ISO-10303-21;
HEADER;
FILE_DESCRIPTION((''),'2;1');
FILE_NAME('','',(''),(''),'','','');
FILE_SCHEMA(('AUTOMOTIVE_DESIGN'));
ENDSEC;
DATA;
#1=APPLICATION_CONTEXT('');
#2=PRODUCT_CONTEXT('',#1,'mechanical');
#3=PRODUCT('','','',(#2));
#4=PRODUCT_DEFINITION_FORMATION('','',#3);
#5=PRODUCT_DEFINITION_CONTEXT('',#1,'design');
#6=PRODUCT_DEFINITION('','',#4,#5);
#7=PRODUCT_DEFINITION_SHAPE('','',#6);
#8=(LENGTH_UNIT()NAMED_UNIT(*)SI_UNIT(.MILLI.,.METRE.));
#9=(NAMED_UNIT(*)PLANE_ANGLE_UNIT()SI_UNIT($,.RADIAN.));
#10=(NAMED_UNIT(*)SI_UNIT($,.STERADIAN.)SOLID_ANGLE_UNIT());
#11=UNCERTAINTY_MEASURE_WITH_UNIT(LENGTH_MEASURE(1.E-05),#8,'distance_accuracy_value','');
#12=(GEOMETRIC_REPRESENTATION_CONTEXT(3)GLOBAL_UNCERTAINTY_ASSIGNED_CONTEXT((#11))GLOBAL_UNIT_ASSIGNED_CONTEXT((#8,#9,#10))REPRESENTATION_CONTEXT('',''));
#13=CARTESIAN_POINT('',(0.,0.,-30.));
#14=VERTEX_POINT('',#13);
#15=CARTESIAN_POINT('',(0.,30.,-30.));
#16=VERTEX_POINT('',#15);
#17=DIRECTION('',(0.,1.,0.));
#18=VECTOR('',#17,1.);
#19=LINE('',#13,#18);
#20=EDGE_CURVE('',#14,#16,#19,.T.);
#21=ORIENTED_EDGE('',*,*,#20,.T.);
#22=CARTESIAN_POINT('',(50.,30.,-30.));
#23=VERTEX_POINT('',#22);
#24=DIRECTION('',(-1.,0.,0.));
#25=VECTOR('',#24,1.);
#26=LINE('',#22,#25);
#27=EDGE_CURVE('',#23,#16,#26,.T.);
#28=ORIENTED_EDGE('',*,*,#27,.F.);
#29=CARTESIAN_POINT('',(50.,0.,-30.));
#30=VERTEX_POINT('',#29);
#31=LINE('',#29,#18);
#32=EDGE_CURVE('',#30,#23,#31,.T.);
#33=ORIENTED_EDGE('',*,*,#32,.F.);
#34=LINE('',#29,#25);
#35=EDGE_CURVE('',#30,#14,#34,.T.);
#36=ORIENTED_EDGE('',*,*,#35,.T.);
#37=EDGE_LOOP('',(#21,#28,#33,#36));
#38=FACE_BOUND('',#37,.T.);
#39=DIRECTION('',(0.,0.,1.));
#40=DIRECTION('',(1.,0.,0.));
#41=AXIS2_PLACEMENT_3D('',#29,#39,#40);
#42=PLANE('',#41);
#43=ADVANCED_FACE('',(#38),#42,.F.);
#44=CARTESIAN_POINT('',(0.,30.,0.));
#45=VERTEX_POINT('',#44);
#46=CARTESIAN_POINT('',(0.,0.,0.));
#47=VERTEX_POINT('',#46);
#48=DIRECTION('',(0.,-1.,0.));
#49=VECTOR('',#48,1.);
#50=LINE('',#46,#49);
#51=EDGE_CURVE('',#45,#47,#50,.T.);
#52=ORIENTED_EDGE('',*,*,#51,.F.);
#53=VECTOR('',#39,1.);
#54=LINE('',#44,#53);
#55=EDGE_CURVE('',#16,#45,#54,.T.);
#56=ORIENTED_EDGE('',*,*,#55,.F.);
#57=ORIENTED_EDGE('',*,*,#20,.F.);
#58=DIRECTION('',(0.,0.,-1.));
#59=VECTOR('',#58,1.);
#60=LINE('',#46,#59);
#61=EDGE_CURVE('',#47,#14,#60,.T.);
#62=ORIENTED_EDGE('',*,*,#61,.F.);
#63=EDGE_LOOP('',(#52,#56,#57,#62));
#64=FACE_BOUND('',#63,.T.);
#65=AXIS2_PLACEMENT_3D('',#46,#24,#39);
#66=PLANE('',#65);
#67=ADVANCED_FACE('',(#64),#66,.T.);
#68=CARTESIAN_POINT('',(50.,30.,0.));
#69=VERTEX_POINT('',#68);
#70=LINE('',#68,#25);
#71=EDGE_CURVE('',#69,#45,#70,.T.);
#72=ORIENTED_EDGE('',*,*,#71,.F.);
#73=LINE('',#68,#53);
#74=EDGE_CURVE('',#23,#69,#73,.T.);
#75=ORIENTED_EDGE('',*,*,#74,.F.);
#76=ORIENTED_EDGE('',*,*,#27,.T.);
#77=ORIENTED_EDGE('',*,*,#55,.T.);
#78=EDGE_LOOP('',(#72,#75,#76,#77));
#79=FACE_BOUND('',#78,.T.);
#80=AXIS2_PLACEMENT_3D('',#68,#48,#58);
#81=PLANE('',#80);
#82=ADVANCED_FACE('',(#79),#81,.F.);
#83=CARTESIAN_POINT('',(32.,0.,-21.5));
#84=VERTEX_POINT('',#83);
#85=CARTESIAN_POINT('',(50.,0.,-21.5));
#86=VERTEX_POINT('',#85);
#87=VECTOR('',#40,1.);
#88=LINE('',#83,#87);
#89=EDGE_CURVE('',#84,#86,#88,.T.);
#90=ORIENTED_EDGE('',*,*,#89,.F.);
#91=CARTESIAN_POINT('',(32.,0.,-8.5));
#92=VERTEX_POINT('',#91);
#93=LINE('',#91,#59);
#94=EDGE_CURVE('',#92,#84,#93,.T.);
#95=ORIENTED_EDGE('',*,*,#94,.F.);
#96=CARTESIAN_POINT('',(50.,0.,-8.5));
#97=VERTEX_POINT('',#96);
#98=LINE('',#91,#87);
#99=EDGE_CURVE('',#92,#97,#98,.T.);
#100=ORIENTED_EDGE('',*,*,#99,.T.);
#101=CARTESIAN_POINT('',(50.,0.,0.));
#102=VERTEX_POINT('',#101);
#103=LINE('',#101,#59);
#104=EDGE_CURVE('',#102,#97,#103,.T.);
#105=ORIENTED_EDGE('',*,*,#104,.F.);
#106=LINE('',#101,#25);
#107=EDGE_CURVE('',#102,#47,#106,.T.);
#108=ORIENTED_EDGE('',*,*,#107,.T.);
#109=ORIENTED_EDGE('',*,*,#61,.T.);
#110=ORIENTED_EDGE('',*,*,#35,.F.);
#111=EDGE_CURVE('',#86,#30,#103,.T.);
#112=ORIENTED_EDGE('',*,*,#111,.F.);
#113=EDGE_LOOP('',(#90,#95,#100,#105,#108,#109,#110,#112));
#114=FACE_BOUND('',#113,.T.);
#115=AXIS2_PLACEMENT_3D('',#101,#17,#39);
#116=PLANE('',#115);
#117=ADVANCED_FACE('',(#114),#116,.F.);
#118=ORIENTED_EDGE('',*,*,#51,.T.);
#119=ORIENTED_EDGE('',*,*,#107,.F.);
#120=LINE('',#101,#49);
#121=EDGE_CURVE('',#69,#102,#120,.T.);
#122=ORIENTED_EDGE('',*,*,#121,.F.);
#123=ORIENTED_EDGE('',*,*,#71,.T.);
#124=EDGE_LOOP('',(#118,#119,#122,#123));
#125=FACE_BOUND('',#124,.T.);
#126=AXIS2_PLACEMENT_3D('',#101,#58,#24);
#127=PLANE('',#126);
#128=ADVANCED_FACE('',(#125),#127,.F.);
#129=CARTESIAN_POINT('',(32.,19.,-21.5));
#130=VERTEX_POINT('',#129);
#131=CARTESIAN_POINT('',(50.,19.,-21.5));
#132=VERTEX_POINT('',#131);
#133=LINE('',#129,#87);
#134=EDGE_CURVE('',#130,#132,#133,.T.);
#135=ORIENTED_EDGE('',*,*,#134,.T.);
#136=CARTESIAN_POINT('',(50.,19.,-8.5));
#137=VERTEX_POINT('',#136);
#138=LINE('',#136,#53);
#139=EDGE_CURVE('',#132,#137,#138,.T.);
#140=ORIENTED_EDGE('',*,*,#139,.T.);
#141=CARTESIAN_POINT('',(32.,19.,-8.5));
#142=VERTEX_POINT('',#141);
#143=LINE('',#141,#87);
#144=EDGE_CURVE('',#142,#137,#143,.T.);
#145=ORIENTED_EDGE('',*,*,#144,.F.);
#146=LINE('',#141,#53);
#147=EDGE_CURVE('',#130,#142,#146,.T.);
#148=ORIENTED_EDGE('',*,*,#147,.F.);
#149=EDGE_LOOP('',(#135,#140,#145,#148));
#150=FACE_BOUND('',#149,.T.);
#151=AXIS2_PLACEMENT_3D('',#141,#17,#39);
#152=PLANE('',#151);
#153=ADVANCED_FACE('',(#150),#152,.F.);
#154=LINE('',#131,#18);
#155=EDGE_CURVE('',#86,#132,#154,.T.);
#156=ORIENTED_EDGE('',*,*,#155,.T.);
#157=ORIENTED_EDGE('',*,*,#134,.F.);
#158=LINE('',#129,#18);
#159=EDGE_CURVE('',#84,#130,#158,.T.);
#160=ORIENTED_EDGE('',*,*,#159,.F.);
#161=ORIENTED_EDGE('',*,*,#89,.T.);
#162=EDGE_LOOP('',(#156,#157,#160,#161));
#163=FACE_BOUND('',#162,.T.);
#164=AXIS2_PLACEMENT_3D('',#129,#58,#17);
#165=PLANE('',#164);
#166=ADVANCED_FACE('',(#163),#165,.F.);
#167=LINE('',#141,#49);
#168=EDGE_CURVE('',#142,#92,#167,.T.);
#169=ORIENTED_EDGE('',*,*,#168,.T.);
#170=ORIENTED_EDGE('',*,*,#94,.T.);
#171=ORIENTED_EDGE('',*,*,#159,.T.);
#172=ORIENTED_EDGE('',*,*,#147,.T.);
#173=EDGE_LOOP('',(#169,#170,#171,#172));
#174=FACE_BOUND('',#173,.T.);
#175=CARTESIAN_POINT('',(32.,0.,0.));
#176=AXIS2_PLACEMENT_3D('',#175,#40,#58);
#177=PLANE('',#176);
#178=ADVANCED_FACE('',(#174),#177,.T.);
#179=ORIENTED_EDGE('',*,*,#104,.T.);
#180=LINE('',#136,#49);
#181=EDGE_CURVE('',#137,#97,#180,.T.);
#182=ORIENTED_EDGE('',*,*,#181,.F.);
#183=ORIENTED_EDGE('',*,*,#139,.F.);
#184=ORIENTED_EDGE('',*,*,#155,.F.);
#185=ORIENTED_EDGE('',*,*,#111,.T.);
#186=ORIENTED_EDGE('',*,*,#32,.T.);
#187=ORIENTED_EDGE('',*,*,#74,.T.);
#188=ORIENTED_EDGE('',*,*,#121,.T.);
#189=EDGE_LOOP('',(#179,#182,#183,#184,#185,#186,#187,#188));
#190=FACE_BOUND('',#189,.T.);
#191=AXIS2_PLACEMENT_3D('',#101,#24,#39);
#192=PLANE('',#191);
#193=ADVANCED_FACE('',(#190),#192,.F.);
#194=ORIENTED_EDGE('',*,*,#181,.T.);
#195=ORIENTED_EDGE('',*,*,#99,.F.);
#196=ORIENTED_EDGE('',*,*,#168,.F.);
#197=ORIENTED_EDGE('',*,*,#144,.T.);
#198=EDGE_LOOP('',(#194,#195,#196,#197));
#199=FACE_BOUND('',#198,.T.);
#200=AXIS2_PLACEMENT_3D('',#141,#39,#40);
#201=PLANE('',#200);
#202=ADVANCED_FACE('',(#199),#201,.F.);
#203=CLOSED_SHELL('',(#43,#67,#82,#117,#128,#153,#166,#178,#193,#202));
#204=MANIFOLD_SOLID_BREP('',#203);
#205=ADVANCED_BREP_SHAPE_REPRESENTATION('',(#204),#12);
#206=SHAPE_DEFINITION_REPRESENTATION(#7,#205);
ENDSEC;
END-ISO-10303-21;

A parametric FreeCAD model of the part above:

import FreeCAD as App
import Part
import Sketcher

V = App.Vector
Q = App.Units.Quantity


def add_polygon(sketch, points):
    """Adds a closed chain of lines whose ends are joined by coincident constraints."""
    first, n = sketch.GeometryCount, len(points)
    for a, b in zip(points, points[1:] + points[:1]):
        sketch.addGeometry(Part.LineSegment(App.Vector(*a, 0), App.Vector(*b, 0)), False)
    for i in range(n):
        sketch.addConstraint(Sketcher.Constraint("Coincident", first + i, 2, first + (i + 1) % n, 1))

doc = App.newDocument("Part")
params = doc.addObject("Spreadsheet::Sheet", "Params")
for row, (alias, value) in enumerate([
    ("sketch1_width", "30 mm"),
    ("pad1_length", "50 mm"),
    ("sketch2_width", "19 mm"),
    ("sketch2_height", "13 mm"),
    ("pocket1_length", "18 mm"),
], start=1):
    params.set(f"A{row}", alias)
    params.set(f"B{row}", "=" + value)
    params.setAlias(f"B{row}", alias)

body = doc.addObject("PartDesign::Body", "Body")

sketch1 = doc.addObject("Sketcher::SketchObject", "Sketch")
body.addObject(sketch1)
sketch1.AttachmentSupport = (doc.YZ_Plane, [""])
sketch1.MapMode = "FlatFace"
add_polygon(sketch1, [(30, 0), (0, 0), (0, -30), (30, -30)])
sketch1.addConstraint([
    Sketcher.Constraint("Horizontal", 0),
    Sketcher.Constraint("Vertical", 1),
    Sketcher.Constraint("Horizontal", 2),
    Sketcher.Constraint("Vertical", 3),
    Sketcher.Constraint("Coincident", 0, 2, -1, 1),
    Sketcher.Constraint("Equal", 2, 1),
    Sketcher.Constraint("DistanceX", 0, 2, 0, 1, Q("30 mm")),
])
sketch1.setExpression("Constraints[10]", "Params.sketch1_width")
pad1 = doc.addObject("PartDesign::Pad", "Pad")
body.addObject(pad1)
pad1.Profile = sketch1
pad1.setExpression("Length", "Params.pad1_length")

sketch2 = doc.addObject("Sketcher::SketchObject", "Sketch001")
body.addObject(sketch2)
sketch2.AttachmentSupport = (doc.YZ_Plane, [""])
sketch2.MapMode = "FlatFace"
sketch2.AttachmentOffset = App.Placement(V(0, 0, 50), App.Rotation())
add_polygon(sketch2, [(19, -8), (0, -8), (0, -22), (19, -22)])
sketch2.addConstraint([
    Sketcher.Constraint("Horizontal", 0),
    Sketcher.Constraint("Vertical", 1),
    Sketcher.Constraint("Horizontal", 2),
    Sketcher.Constraint("Vertical", 3),
    Sketcher.Constraint("PointOnObject", 0, 2, -2),
    Sketcher.Constraint("DistanceX", 0, 2, 0, 1, Q("19 mm")),
    Sketcher.Constraint("DistanceY", 1, 2, 1, 1, Q("13 mm")),
    Sketcher.Constraint("DistanceY", 0, 2, -1, 1, Q("8.5 mm")),
])
sketch2.setExpression("Constraints[9]", "Params.sketch2_width")
sketch2.setExpression("Constraints[10]", "Params.sketch2_height")
pocket1 = doc.addObject("PartDesign::Pocket", "Pocket")
body.addObject(pocket1)
pocket1.Profile = sketch2
pocket1.setExpression("Length", "Params.pocket1_length")

doc.recompute()
